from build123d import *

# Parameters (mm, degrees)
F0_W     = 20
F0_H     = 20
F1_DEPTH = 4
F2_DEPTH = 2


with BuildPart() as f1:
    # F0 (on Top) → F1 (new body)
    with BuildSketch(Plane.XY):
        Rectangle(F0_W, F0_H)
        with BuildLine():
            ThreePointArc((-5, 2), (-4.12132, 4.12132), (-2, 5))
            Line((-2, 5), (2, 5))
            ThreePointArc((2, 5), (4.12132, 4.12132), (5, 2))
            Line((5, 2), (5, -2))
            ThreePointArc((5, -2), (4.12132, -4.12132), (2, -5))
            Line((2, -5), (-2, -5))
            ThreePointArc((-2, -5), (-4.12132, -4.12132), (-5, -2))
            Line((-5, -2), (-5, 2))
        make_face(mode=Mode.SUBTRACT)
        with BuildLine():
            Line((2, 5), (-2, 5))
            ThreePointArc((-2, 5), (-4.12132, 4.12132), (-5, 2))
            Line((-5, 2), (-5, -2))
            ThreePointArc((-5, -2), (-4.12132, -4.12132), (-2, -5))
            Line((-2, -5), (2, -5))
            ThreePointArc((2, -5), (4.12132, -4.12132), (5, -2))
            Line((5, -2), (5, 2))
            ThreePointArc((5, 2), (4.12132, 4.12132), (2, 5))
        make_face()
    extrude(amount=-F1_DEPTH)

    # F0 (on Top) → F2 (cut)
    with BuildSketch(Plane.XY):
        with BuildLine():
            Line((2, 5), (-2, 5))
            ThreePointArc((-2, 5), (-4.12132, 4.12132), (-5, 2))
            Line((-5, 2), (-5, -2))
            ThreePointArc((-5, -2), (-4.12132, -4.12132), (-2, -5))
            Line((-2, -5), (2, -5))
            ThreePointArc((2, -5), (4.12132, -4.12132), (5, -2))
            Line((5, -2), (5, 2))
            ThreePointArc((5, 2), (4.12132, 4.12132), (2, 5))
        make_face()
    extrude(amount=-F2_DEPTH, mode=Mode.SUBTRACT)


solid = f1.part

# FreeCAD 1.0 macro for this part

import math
import FreeCAD as App
import Part
import Sketcher
from FreeCAD import Vector


def add_polygon(sketch, points):
    """Adds a closed chain of lines whose ends are joined by coincident constraints."""
    first, n = sketch.GeometryCount, len(points)
    for a, b in zip(points, points[1:] + points[:1]):
        sketch.addGeometry(Part.LineSegment(App.Vector(*a, 0), App.Vector(*b, 0)), False)
    for i in range(n):
        sketch.addConstraint(Sketcher.Constraint("Coincident", first + i, 2, first + (i + 1) % n, 1))

doc = App.newDocument("Part")
params = doc.addObject("Spreadsheet::Sheet", "Params")
for row, (alias, value) in enumerate([
    ("sketch1_width", "20 mm"),
    ("pad1_length", "4 mm"),
    ("sketch2_radius", "3.000001 mm"),
    ("sketch2_width", "4 mm"),
    ("pocket1_length", "2 mm"),
], start=1):
    params.set(f"A{row}", alias)
    params.set(f"B{row}", "=" + value)
    params.setAlias(f"B{row}", alias)

body = doc.addObject("PartDesign::Body", "Body")

# Sketch on XY plane
sketch1 = body.newObject("Sketcher::SketchObject", "Sketch")
sketch1.AttachmentSupport = (doc.getObject("XY_Plane"), [""])
sketch1.MapMode = "FlatFace"
add_polygon(sketch1, [(-10, 10), (-10, -10), (10, -10), (10, 10)])  # lines 0-3
sketch1.addConstraint([
    Sketcher.Constraint("Vertical", 0),
    Sketcher.Constraint("Horizontal", 1),
    Sketcher.Constraint("Vertical", 2),
    Sketcher.Constraint("Horizontal", 3),
    Sketcher.Constraint("Symmetric", 0, 2, 2, 2, -1, 1),
    Sketcher.Constraint("Equal", 3, 0),
    Sketcher.Constraint("DistanceX", 1, 1, 1, 2, 20.0),
])
sketch1.setExpression("Constraints[10]", "Params.sketch1_width")
pad1 = body.newObject("PartDesign::Pad", "Pad")
pad1.Profile = sketch1
pad1.setExpression("Length", "Params.pad1_length")
pad1.Reversed = True

# Sketch on XY plane
sketch2 = body.newObject("Sketcher::SketchObject", "Sketch001")
sketch2.AttachmentSupport = (doc.getObject("XY_Plane"), [""])
sketch2.MapMode = "FlatFace"
sketch2.addGeometry([
    Part.LineSegment(Vector(2, 5, 0), Vector(-2, 5, 0)),  # 0
    Part.ArcOfCircle(Part.Circle(Vector(-2, 2, 0), Vector(0, 0, 1), 3), math.radians(90), math.radians(180)),  # 1
    Part.LineSegment(Vector(-5, 2, 0), Vector(-5, -2, 0)),  # 2
    Part.ArcOfCircle(Part.Circle(Vector(-2, -2, 0), Vector(0, 0, 1), 3), math.radians(-180), math.radians(-90)),  # 3
    Part.LineSegment(Vector(-2, -5, 0), Vector(2, -5, 0)),  # 4
    Part.ArcOfCircle(Part.Circle(Vector(2, -2, 0), Vector(0, 0, 1), 3), math.radians(-90), math.radians(0)),  # 5
    Part.LineSegment(Vector(5, -2, 0), Vector(5, 2, 0)),  # 6
    Part.ArcOfCircle(Part.Circle(Vector(2, 2, 0), Vector(0, 0, 1), 3), math.radians(0), math.radians(90)),  # 7
], False)
sketch2.addConstraint([
    Sketcher.Constraint("Tangent", 0, 2, 1, 1),
    Sketcher.Constraint("Tangent", 1, 2, 2, 1),
    Sketcher.Constraint("Tangent", 2, 2, 3, 1),
    Sketcher.Constraint("Tangent", 3, 2, 4, 1),
    Sketcher.Constraint("Tangent", 4, 2, 5, 1),
    Sketcher.Constraint("Tangent", 5, 2, 6, 1),
    Sketcher.Constraint("Tangent", 6, 2, 7, 1),
    Sketcher.Constraint("Tangent", 7, 2, 0, 1),
    Sketcher.Constraint("Horizontal", 0),
    Sketcher.Constraint("Vertical", 2),
    Sketcher.Constraint("Horizontal", 4),
    Sketcher.Constraint("Vertical", 6),
    Sketcher.Constraint("Equal", 1, 3),
    Sketcher.Constraint("Equal", 3, 5),
    Sketcher.Constraint("Equal", 5, 7),
    Sketcher.Constraint("Symmetric", 1, 3, 5, 3, -1, 1),
    Sketcher.Constraint("Equal", 4, 2),
    Sketcher.Constraint("Radius", 1, 3.000001),
    Sketcher.Constraint("DistanceX", 0, 2, 0, 1, 4.0),
])
sketch2.setExpression("Constraints[17]", "Params.sketch2_radius")
sketch2.setExpression("Constraints[18]", "Params.sketch2_width")
pocket1 = body.newObject("PartDesign::Pocket", "Pocket")
pocket1.Profile = sketch2
pocket1.setExpression("Length", "Params.pocket1_length")

doc.recompute()
